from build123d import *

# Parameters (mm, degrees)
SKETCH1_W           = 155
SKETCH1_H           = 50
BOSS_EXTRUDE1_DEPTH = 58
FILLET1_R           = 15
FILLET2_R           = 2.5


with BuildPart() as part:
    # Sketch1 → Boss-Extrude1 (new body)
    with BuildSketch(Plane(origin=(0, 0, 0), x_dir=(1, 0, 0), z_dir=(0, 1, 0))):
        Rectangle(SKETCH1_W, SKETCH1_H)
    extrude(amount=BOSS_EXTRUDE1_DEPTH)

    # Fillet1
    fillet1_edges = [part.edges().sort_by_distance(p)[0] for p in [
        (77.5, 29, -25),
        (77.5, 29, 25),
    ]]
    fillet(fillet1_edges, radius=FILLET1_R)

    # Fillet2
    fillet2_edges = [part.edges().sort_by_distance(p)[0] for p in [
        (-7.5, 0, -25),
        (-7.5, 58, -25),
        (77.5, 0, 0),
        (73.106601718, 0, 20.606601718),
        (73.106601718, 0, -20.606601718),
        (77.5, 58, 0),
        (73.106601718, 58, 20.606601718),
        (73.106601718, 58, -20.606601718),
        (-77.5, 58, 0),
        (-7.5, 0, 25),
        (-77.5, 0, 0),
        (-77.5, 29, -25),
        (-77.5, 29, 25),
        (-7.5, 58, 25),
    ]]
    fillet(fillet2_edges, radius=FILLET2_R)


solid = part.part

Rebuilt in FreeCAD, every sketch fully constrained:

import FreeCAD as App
import Part
import Sketcher

V = App.Vector
Q = App.Units.Quantity


def edges_at(feature, points):
    """Names of the edges that pass closest to the given points."""
    edges = feature.Shape.Edges
    near = lambda p: min(range(len(edges)), key=lambda i: edges[i].distToShape(Part.Vertex(*p))[0])
    return sorted({f"Edge{near(p) + 1}" for p in points})

doc = App.newDocument("Part")
body = doc.addObject("PartDesign::Body", "Body")

# Sketch on XZ plane
sketch1 = body.newObject("Sketcher::SketchObject", "Sketch")
sketch1.AttachmentSupport = (doc.getObject("XZ_Plane"), [""])
sketch1.MapMode = "FlatFace"
sketch1.addGeometry(Part.LineSegment(V(-77.5, -25, 0), V(-77.5, 25, 0)), False)
sketch1.addGeometry(Part.LineSegment(V(-77.5, 25, 0), V(77.5, 25, 0)), False)
sketch1.addGeometry(Part.LineSegment(V(77.5, 25, 0), V(77.5, -25, 0)), False)
sketch1.addGeometry(Part.LineSegment(V(77.5, -25, 0), V(-77.5, -25, 0)), False)
sketch1.addConstraint(Sketcher.Constraint("Coincident", 0, 2, 1, 1))
sketch1.addConstraint(Sketcher.Constraint("Coincident", 1, 2, 2, 1))
sketch1.addConstraint(Sketcher.Constraint("Coincident", 2, 2, 3, 1))
sketch1.addConstraint(Sketcher.Constraint("Coincident", 3, 2, 0, 1))
sketch1.addConstraint(Sketcher.Constraint("Vertical", 0))
sketch1.addConstraint(Sketcher.Constraint("Horizontal", 1))
sketch1.addConstraint(Sketcher.Constraint("Vertical", 2))
sketch1.addConstraint(Sketcher.Constraint("Horizontal", 3))
sketch1.addConstraint(Sketcher.Constraint("Symmetric", 0, 2, 2, 2, -1, 1))
sketch1.addConstraint(Sketcher.Constraint("DistanceX", 1, 1, 1, 2, Q("155 mm")))
sketch1.addConstraint(Sketcher.Constraint("DistanceY", 0, 1, 0, 2, Q("50 mm")))
pad1 = body.newObject("PartDesign::Pad", "Pad")
pad1.Profile = sketch1
pad1.Length = 58
pad1.Reversed = True
doc.recompute()

fillet = body.newObject("PartDesign::Fillet", "Fillet")
fillet.Base = (pad1, edges_at(pad1, [(77.5, 29, -25), (77.5, 29, 25)]))
fillet.Radius = 15
doc.recompute()

fillet2 = body.newObject("PartDesign::Fillet", "Fillet001")
fillet2.Base = (fillet, ["Edge1"])
fillet2.UseAllEdges = True
fillet2.Radius = 2.5

doc.recompute()
